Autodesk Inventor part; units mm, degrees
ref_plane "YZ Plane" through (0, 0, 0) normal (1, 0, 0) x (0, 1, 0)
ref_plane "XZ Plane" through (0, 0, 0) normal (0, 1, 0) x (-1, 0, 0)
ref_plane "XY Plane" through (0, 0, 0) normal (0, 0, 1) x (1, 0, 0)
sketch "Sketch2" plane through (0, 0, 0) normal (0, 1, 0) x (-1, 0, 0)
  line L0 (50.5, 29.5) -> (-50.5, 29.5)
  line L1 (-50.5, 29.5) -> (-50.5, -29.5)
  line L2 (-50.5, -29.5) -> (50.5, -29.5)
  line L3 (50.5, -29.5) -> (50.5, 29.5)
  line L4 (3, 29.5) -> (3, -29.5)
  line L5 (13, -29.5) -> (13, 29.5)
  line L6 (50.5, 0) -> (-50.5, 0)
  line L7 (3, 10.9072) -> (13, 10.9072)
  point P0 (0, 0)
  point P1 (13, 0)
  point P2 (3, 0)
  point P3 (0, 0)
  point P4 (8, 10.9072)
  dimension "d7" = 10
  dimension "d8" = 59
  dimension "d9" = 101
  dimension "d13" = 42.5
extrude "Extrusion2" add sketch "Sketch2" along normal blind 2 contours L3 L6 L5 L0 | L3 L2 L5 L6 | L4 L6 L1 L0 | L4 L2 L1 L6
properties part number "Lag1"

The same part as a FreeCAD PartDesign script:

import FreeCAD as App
import Part
import Sketcher

V = App.Vector

doc = App.newDocument("Part")
body = doc.addObject("PartDesign::Body", "Body")
body.AllowCompound = True

# Sketch on XZ plane
sketch1 = body.newObject("Sketcher::SketchObject", "Sketch")
sketch1.AttachmentSupport = (doc.getObject("XZ_Plane"), [""])
sketch1.MapMode = "FlatFace"
sketch1.addGeometry([
    Part.LineSegment(V(-50, 30, 0), V(-13, 30, 0)),  # 0
    Part.LineSegment(V(-13, 30, 0), V(-13, -30, 0)),  # 1
    Part.LineSegment(V(-13, -30, 0), V(-50, -30, 0)),  # 2
    Part.LineSegment(V(-50, -30, 0), V(-50, 30, 0)),  # 3
    Part.LineSegment(V(-3, 30, 0), V(50, 30, 0)),  # 4
    Part.LineSegment(V(50, 30, 0), V(50, -30, 0)),  # 5
    Part.LineSegment(V(50, -30, 0), V(-3, -30, 0)),  # 6
    Part.LineSegment(V(-3, -30, 0), V(-3, 30, 0)),  # 7
], False)
sketch1.addConstraint([
    Sketcher.Constraint("Coincident", 0, 2, 1, 1),
    Sketcher.Constraint("Coincident", 1, 2, 2, 1),
    Sketcher.Constraint("Coincident", 2, 2, 3, 1),
    Sketcher.Constraint("Coincident", 3, 2, 0, 1),
    Sketcher.Constraint("Coincident", 4, 2, 5, 1),
    Sketcher.Constraint("Coincident", 5, 2, 6, 1),
    Sketcher.Constraint("Coincident", 6, 2, 7, 1),
    Sketcher.Constraint("Coincident", 7, 2, 4, 1),
    Sketcher.Constraint("Horizontal", 0),
    Sketcher.Constraint("Vertical", 1),
    Sketcher.Constraint("Horizontal", 2),
    Sketcher.Constraint("Vertical", 3),
    Sketcher.Constraint("Horizontal", 4),
    Sketcher.Constraint("Vertical", 5),
    Sketcher.Constraint("Horizontal", 6),
    Sketcher.Constraint("Vertical", 7),
    Sketcher.Constraint("Symmetric", 2, 2, 4, 2, -1, 1),
    Sketcher.Constraint("Horizontal", 3, 2, 4, 2),
    Sketcher.Constraint("Horizontal", 2, 2, 5, 2),
    Sketcher.Constraint("DistanceY", 1, 2, 1, 1, 59.0),
    Sketcher.Constraint("DistanceX", 3, 2, 4, 2, 101.0),
    Sketcher.Constraint("DistanceX", 1, 2, 6, 2, 10.0),
    Sketcher.Constraint("DistanceX", 0, 1, 0, 2, 37.5),
])
pad1 = body.newObject("PartDesign::Pad", "Pad")
pad1.Profile = sketch1
pad1.Length = 2
pad1.Reversed = True

doc.recompute()
